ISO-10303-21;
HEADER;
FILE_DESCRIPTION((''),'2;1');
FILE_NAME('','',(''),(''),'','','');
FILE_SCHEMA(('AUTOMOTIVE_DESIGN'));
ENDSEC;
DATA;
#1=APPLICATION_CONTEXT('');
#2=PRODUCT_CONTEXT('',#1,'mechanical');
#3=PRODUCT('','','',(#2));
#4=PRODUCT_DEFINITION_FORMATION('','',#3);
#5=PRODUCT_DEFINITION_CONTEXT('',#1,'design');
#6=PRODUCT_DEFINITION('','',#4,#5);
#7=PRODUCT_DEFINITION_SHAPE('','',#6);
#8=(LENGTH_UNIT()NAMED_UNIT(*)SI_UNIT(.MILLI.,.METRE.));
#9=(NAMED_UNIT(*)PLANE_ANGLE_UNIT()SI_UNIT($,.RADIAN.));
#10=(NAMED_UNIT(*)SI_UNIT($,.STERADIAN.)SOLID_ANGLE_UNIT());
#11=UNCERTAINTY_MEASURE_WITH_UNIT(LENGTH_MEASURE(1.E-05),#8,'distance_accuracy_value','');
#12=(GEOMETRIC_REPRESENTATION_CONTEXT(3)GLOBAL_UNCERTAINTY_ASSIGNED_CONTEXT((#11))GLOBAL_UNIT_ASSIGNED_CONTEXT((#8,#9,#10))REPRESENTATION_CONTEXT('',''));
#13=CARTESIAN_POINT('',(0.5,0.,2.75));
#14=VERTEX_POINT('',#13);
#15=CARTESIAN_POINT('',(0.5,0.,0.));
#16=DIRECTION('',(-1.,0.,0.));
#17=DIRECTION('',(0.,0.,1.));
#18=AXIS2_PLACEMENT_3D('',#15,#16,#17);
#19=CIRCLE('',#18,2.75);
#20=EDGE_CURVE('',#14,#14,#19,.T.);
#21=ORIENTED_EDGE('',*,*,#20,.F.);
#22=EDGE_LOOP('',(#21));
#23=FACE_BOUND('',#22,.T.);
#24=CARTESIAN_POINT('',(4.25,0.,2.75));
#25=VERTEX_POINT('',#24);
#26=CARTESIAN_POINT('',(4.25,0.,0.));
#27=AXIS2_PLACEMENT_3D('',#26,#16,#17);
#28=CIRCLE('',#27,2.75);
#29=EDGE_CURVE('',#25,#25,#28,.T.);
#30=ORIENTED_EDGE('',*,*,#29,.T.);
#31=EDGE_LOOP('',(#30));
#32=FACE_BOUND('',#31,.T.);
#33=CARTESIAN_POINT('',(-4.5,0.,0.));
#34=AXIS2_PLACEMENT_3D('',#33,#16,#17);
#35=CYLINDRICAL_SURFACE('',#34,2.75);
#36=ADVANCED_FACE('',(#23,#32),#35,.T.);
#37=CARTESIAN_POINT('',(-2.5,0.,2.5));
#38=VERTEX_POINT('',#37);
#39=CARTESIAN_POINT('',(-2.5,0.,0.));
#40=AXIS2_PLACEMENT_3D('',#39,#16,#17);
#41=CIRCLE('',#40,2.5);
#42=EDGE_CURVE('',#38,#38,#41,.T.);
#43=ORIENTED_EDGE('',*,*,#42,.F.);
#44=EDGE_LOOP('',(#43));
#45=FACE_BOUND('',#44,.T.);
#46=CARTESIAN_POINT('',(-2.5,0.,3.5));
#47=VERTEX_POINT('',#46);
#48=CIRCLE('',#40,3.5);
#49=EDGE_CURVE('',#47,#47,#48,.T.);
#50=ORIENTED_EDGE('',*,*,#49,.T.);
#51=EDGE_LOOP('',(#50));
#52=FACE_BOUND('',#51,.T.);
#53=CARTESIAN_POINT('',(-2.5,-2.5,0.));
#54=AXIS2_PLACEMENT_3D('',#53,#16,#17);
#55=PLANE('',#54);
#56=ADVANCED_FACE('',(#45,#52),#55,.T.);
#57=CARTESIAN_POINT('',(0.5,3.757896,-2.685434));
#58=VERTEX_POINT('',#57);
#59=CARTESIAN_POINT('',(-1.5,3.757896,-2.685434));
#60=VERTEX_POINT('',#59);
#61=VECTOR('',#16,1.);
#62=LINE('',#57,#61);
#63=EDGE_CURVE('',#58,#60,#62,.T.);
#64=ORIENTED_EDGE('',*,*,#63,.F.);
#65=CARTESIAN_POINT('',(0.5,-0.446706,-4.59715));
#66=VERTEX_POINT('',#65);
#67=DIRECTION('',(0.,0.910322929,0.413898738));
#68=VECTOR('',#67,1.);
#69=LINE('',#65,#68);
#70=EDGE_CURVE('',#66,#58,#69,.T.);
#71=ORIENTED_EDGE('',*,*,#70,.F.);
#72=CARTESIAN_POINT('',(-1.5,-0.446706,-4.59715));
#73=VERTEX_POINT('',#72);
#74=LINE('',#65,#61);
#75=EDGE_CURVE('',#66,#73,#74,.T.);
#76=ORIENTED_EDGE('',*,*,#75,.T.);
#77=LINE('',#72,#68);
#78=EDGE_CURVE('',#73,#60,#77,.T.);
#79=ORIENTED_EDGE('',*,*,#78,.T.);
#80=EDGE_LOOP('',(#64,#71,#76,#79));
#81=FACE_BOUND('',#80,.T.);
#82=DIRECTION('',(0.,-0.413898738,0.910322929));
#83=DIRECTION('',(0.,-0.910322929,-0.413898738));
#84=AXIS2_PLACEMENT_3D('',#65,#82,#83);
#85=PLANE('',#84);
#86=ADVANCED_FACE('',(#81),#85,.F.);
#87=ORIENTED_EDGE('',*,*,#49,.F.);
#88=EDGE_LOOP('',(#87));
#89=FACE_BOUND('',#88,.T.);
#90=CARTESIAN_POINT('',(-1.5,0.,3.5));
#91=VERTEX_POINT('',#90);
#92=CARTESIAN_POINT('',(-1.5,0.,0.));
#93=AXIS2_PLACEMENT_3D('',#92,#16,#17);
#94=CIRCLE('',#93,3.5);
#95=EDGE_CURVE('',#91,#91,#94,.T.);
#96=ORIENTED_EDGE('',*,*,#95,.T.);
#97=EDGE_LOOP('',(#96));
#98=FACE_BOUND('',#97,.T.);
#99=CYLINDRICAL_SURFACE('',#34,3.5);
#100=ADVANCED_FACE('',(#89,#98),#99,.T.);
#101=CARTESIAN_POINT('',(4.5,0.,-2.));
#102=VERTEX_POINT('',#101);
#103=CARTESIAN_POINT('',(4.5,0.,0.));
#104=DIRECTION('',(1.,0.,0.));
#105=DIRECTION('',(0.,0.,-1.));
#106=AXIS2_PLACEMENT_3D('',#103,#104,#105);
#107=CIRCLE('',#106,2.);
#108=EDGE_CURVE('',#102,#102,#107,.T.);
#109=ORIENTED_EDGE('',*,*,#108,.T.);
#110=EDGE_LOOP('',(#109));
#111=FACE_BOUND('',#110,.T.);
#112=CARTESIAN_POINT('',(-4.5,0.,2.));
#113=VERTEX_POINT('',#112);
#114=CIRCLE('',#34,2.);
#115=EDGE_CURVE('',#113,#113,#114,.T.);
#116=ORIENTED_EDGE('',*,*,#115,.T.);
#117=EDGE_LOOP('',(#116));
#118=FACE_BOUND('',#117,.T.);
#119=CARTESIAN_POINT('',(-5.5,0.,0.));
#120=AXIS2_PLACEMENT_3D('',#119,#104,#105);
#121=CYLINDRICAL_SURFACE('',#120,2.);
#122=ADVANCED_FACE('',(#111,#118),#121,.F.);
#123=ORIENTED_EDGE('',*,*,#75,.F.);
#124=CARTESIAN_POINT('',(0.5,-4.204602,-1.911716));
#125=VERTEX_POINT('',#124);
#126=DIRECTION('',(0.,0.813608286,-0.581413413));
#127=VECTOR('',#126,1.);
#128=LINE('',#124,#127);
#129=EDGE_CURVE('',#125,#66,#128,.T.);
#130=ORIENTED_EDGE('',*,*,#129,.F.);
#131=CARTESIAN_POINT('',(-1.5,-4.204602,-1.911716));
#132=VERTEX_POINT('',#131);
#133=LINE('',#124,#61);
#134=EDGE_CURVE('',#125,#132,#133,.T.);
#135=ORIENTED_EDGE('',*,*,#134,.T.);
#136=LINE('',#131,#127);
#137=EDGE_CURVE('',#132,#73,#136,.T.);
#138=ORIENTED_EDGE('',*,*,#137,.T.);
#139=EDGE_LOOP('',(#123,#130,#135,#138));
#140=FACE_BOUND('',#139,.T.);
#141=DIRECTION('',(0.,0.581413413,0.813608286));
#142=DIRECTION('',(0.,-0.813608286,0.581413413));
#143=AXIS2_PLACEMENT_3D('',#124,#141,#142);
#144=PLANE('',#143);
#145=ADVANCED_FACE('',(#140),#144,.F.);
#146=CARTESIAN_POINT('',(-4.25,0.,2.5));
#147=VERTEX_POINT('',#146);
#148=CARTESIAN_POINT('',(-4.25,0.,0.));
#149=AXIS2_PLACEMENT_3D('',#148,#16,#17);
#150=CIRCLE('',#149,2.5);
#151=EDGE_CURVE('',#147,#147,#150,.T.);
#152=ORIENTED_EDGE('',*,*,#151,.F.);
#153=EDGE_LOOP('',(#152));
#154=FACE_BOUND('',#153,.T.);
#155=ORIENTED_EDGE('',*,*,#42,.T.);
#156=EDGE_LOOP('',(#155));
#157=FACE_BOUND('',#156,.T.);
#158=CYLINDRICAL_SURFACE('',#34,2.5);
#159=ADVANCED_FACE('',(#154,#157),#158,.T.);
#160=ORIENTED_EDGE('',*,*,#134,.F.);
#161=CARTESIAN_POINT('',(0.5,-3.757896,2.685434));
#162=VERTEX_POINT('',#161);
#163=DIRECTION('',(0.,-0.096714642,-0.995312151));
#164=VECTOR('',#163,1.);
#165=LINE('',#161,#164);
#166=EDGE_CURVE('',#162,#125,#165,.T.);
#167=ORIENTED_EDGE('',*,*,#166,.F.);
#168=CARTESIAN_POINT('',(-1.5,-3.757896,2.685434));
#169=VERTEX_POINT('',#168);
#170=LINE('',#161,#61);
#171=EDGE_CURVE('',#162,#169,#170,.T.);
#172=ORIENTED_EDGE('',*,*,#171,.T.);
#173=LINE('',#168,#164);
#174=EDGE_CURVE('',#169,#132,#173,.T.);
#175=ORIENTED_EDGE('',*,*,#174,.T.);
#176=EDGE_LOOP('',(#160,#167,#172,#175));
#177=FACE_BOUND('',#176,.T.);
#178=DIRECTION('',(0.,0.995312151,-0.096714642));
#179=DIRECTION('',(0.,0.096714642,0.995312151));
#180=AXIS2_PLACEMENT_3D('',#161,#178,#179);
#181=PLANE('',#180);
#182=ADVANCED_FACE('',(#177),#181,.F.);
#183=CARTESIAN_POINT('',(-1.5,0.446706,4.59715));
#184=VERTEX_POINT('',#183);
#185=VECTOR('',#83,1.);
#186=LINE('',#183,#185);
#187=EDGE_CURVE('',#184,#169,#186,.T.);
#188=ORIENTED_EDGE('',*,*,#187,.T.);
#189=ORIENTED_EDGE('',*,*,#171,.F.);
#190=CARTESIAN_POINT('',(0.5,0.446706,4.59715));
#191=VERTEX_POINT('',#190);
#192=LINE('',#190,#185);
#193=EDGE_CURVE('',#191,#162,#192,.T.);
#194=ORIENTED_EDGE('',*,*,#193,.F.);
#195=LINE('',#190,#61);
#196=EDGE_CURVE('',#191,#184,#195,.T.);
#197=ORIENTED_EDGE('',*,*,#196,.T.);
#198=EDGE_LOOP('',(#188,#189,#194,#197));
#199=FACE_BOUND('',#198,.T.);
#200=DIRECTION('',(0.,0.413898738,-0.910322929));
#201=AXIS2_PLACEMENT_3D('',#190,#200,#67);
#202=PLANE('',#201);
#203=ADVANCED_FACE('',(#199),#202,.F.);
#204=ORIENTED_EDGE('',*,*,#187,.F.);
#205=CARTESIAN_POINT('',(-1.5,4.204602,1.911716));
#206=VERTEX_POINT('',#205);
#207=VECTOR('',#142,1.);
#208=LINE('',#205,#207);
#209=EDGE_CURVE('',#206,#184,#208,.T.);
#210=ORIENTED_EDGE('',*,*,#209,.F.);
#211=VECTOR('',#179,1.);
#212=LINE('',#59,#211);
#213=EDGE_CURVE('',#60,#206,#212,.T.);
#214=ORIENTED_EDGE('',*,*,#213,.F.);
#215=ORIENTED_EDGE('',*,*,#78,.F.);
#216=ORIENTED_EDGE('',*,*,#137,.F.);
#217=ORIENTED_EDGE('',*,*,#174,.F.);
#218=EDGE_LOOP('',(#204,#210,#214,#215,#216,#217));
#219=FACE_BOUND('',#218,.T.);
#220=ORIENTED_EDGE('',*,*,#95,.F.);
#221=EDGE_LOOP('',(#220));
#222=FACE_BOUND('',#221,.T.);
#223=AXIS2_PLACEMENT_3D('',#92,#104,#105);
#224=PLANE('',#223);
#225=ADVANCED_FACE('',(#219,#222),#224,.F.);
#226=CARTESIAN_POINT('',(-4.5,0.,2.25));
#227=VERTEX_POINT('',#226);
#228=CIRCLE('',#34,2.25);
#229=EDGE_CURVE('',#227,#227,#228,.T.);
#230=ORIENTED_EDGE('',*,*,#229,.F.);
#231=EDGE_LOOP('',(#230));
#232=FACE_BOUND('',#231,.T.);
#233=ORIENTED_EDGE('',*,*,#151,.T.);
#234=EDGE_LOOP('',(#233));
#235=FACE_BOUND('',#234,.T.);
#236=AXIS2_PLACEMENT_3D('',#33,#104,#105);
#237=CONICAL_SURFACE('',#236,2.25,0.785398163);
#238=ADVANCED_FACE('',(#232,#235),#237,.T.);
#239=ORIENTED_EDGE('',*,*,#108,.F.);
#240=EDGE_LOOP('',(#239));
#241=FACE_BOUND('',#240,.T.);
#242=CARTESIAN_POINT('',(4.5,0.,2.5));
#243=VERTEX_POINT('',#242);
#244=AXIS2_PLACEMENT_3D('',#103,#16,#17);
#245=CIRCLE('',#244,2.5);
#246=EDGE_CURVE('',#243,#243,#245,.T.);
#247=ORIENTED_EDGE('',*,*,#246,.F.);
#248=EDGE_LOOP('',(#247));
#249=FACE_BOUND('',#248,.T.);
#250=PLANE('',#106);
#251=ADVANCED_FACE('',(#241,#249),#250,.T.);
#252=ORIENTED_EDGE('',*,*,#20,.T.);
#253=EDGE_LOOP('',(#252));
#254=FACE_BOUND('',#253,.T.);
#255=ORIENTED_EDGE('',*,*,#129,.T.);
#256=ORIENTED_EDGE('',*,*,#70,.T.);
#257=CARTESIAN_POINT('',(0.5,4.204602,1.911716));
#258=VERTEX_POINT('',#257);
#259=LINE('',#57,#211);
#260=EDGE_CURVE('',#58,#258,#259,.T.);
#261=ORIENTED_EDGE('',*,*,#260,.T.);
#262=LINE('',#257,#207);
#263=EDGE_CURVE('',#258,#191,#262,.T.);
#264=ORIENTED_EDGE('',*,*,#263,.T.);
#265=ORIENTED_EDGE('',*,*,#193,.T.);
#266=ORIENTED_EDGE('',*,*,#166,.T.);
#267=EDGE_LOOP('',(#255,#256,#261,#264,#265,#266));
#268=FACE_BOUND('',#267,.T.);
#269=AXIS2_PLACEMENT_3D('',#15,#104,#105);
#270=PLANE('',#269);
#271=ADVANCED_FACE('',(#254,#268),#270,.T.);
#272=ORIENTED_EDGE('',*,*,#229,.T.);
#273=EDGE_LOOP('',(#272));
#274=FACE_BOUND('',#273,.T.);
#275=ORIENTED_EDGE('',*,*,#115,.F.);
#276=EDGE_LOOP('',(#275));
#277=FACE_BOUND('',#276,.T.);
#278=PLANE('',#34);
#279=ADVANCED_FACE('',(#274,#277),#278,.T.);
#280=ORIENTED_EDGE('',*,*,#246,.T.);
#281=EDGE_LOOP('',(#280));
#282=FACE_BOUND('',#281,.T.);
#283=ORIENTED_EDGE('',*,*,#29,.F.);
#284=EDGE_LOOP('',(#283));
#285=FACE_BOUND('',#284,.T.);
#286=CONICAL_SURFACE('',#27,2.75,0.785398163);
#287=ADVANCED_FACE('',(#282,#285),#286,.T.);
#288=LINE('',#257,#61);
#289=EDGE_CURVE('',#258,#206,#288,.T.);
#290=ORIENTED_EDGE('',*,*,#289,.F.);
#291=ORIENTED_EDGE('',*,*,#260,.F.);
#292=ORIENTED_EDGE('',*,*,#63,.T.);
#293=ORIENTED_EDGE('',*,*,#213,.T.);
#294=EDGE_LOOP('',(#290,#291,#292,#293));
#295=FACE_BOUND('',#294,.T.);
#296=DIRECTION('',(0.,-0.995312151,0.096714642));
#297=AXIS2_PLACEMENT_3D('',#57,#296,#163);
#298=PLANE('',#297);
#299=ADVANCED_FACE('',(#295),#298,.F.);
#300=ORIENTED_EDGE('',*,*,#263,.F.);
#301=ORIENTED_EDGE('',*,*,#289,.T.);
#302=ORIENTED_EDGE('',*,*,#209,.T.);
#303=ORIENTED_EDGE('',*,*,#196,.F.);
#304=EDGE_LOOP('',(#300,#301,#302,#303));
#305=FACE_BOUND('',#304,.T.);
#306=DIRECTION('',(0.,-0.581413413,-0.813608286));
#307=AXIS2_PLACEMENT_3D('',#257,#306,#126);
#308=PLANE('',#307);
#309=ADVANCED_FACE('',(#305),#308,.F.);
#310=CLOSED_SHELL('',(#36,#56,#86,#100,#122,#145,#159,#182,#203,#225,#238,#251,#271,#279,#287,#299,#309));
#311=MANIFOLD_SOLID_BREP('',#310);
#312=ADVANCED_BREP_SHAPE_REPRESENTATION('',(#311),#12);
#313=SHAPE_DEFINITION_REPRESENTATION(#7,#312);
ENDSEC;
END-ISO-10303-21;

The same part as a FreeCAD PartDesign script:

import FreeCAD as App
import Part
import Sketcher
Q = App.Units.Quantity

doc = App.newDocument("Part")
params = doc.addObject("Spreadsheet::Sheet", "Params")
for row, (alias, value) in enumerate([
    ("sketch1_width", "3 mm"),
    ("sketch1_width2", "1 mm"),
    ("sketch1_width3", "4 mm"),
    ("sketch1_height", "3.5 mm"),
    ("sketch1_width4", "1.75 mm"),
    ("revolution_angle", "360 deg"),
    ("pad1_length", "2 mm"),
    ("sketch3_diameter", "4 mm"),
    ("pocket1_length", "10 mm"),
], start=1):
    params.set(f"A{row}", alias)
    params.set(f"B{row}", "=" + value)
    params.setAlias(f"B{row}", alias)

body = doc.addObject("PartDesign::Body", "Body")
body.AllowCompound = True

# Sketch on XY plane
sketch1 = doc.addObject("Sketcher::SketchObject", "Sketch")
body.addObject(sketch1)
sketch1.AttachmentSupport = (doc.XY_Plane, [""])
sketch1.MapMode = "FlatFace"
sketch1.addGeometry(Part.LineSegment(App.Vector(-1.5, 0, 0), App.Vector(-4.5, 0, 0)), False)
sketch1.addGeometry(Part.LineSegment(App.Vector(-4.5, 0, 0), App.Vector(-4.5, -2.25, 0)), False)
sketch1.addGeometry(Part.LineSegment(App.Vector(-4.5, -2.25, 0), App.Vector(-4.25, -2.5, 0)), False)
sketch1.addGeometry(Part.LineSegment(App.Vector(-4.25, -2.5, 0), App.Vector(-2.5, -2.5, 0)), False)
sketch1.addGeometry(Part.LineSegment(App.Vector(-2.5, -2.5, 0), App.Vector(-2.5, -3.5, 0)), False)
sketch1.addGeometry(Part.LineSegment(App.Vector(-2.5, -3.5, 0), App.Vector(-1.5, -3.5, 0)), False)
sketch1.addGeometry(Part.LineSegment(App.Vector(-1.5, -3.5, 0), App.Vector(-1.5, 0, 0)), False)
sketch1.addGeometry(Part.LineSegment(App.Vector(0.5, -2.75, 0), App.Vector(4.25, -2.75, 0)), False)
sketch1.addGeometry(Part.LineSegment(App.Vector(4.25, -2.75, 0), App.Vector(4.5, -2.5, 0)), False)
sketch1.addGeometry(Part.LineSegment(App.Vector(4.5, -2.5, 0), App.Vector(4.5, 0, 0)), False)
sketch1.addGeometry(Part.LineSegment(App.Vector(4.5, 0, 0), App.Vector(0.5, 0, 0)), False)
sketch1.addGeometry(Part.LineSegment(App.Vector(0.5, 0, 0), App.Vector(0.5, -2.75, 0)), False)
sketch1.addConstraint(Sketcher.Constraint("Coincident", 0, 2, 1, 1))
sketch1.addConstraint(Sketcher.Constraint("Coincident", 1, 2, 2, 1))
sketch1.addConstraint(Sketcher.Constraint("Coincident", 2, 2, 3, 1))
sketch1.addConstraint(Sketcher.Constraint("Coincident", 3, 2, 4, 1))
sketch1.addConstraint(Sketcher.Constraint("Coincident", 4, 2, 5, 1))
sketch1.addConstraint(Sketcher.Constraint("Coincident", 5, 2, 6, 1))
sketch1.addConstraint(Sketcher.Constraint("Coincident", 6, 2, 0, 1))
sketch1.addConstraint(Sketcher.Constraint("Coincident", 7, 2, 8, 1))
sketch1.addConstraint(Sketcher.Constraint("Coincident", 8, 2, 9, 1))
sketch1.addConstraint(Sketcher.Constraint("Coincident", 9, 2, 10, 1))
sketch1.addConstraint(Sketcher.Constraint("Coincident", 10, 2, 11, 1))
sketch1.addConstraint(Sketcher.Constraint("Coincident", 11, 2, 7, 1))
sketch1.addConstraint(Sketcher.Constraint("Horizontal", 0))
sketch1.addConstraint(Sketcher.Constraint("Vertical", 1))
sketch1.addConstraint(Sketcher.Constraint("Horizontal", 3))
sketch1.addConstraint(Sketcher.Constraint("Vertical", 4))
sketch1.addConstraint(Sketcher.Constraint("Horizontal", 5))
sketch1.addConstraint(Sketcher.Constraint("Vertical", 6))
sketch1.addConstraint(Sketcher.Constraint("Horizontal", 7))
sketch1.addConstraint(Sketcher.Constraint("Vertical", 9))
sketch1.addConstraint(Sketcher.Constraint("Horizontal", 10))
sketch1.addConstraint(Sketcher.Constraint("Vertical", 11))
sketch1.addConstraint(Sketcher.Constraint("Symmetric", 0, 2, 9, 2, -1, 1))
sketch1.addConstraint(Sketcher.Constraint("PointOnObject", 0, 2, -1))
sketch1.addConstraint(Sketcher.Constraint("Perpendicular", 2, 8))
sketch1.addConstraint(Sketcher.Constraint("Horizontal", 3, 2, 8, 2))
sketch1.addConstraint(Sketcher.Constraint("Equal", 5, 4))
sketch1.addConstraint(Sketcher.Constraint("Equal", 2, 8))
sketch1.addConstraint(Sketcher.Constraint("DistanceX", 0, 2, 0, 1, 3.0))
sketch1.addConstraint(Sketcher.Constraint("DistanceX", 5, 1, 5, 2, 1.0))
sketch1.addConstraint(Sketcher.Constraint("DistanceX", 10, 2, 10, 1, 4.0))
sketch1.addConstraint(Sketcher.Constraint("Angle", 2, Q("-45 deg")))
sketch1.addConstraint(Sketcher.Constraint("DistanceY", 6, 1, 6, 2, 3.5))
sketch1.addConstraint(Sketcher.Constraint("DistanceX", 5, 2, 8, 2, 6.0))
sketch1.addConstraint(Sketcher.Constraint("DistanceX", 3, 1, 3, 2, 1.75))
sketch1.setExpression("Constraints[28]", "Params.sketch1_width")
sketch1.setExpression("Constraints[29]", "Params.sketch1_width2")
sketch1.setExpression("Constraints[30]", "Params.sketch1_width3")
sketch1.setExpression("Constraints[32]", "Params.sketch1_height")
sketch1.setExpression("Constraints[34]", "Params.sketch1_width4")
revolution = doc.addObject("PartDesign::Revolution", "Revolution")
body.addObject(revolution)
revolution.Profile = sketch1
revolution.ReferenceAxis = (sketch1, ["H_Axis"])
revolution.setExpression("Angle", "Params.revolution_angle")

# Sketch on YZ plane
sketch2 = doc.addObject("Sketcher::SketchObject", "Sketch001")
body.addObject(sketch2)
sketch2.AttachmentSupport = (doc.YZ_Plane, [""])
sketch2.MapMode = "FlatFace"
sketch2.AttachmentOffset = App.Placement(App.Vector(0, 0, -1.5), App.Rotation())
sketch2.addGeometry(Part.LineSegment(App.Vector(-4.2, -1.9, 0), App.Vector(-0.4, -4.6, 0)), False)
sketch2.addGeometry(Part.LineSegment(App.Vector(-0.4, -4.6, 0), App.Vector(3.8, -2.7, 0)), False)
sketch2.addGeometry(Part.LineSegment(App.Vector(3.8, -2.7, 0), App.Vector(4.2, 1.9, 0)), False)
sketch2.addGeometry(Part.LineSegment(App.Vector(4.2, 1.9, 0), App.Vector(0.4, 4.6, 0)), False)
sketch2.addGeometry(Part.LineSegment(App.Vector(0.4, 4.6, 0), App.Vector(-3.8, 2.7, 0)), False)
sketch2.addGeometry(Part.LineSegment(App.Vector(-3.8, 2.7, 0), App.Vector(-4.2, -1.9, 0)), False)
sketch2.addConstraint(Sketcher.Constraint("Coincident", 0, 2, 1, 1))
sketch2.addConstraint(Sketcher.Constraint("Coincident", 1, 2, 2, 1))
sketch2.addConstraint(Sketcher.Constraint("Coincident", 2, 2, 3, 1))
sketch2.addConstraint(Sketcher.Constraint("Coincident", 3, 2, 4, 1))
sketch2.addConstraint(Sketcher.Constraint("Coincident", 4, 2, 5, 1))
sketch2.addConstraint(Sketcher.Constraint("Coincident", 5, 2, 0, 1))
sketch2.addConstraint(Sketcher.Constraint("Symmetric", 0, 2, 3, 2, -1, 1))
sketch2.addConstraint(Sketcher.Constraint("Symmetric", 1, 2, 4, 2, -1, 1))
sketch2.addConstraint(Sketcher.Constraint("Symmetric", 2, 2, 5, 2, -1, 1))
sketch2.addConstraint(Sketcher.Constraint("Equal", 0, 1))
sketch2.addConstraint(Sketcher.Constraint("Equal", 1, 2))
sketch2.addConstraint(Sketcher.Constraint("Angle", 0, Q("-35.550016 deg")))
sketch2.addConstraint(Sketcher.Constraint("Angle", 1, Q("24.449984 deg")))
sketch2.addConstraint(Sketcher.Constraint("Angle", 2, Q("84.449984 deg")))
sketch2.addConstraint(Sketcher.Constraint("DistanceX", -1, 1, 2, 2, 4.204602))
pad1 = doc.addObject("PartDesign::Pad", "Pad")
body.addObject(pad1)
pad1.Profile = sketch2
pad1.setExpression("Length", "Params.pad1_length")

# Sketch on YZ plane
sketch3 = doc.addObject("Sketcher::SketchObject", "Sketch002")
body.addObject(sketch3)
sketch3.AttachmentSupport = (doc.YZ_Plane, [""])
sketch3.MapMode = "FlatFace"
sketch3.AttachmentOffset = App.Placement(App.Vector(0, 0, 4.5), App.Rotation())
sketch3.addGeometry(Part.Circle(App.Vector(0, 0, 0), App.Vector(0, 0, 1), 2), False)
sketch3.addConstraint(Sketcher.Constraint("Coincident", 0, 3, -1, 1))
sketch3.addConstraint(Sketcher.Constraint("Diameter", 0, 4.0))
sketch3.setExpression("Constraints[1]", "Params.sketch3_diameter")
pocket1 = doc.addObject("PartDesign::Pocket", "Pocket")
body.addObject(pocket1)
pocket1.Profile = sketch3
pocket1.setExpression("Length", "Params.pocket1_length")

doc.recompute()
